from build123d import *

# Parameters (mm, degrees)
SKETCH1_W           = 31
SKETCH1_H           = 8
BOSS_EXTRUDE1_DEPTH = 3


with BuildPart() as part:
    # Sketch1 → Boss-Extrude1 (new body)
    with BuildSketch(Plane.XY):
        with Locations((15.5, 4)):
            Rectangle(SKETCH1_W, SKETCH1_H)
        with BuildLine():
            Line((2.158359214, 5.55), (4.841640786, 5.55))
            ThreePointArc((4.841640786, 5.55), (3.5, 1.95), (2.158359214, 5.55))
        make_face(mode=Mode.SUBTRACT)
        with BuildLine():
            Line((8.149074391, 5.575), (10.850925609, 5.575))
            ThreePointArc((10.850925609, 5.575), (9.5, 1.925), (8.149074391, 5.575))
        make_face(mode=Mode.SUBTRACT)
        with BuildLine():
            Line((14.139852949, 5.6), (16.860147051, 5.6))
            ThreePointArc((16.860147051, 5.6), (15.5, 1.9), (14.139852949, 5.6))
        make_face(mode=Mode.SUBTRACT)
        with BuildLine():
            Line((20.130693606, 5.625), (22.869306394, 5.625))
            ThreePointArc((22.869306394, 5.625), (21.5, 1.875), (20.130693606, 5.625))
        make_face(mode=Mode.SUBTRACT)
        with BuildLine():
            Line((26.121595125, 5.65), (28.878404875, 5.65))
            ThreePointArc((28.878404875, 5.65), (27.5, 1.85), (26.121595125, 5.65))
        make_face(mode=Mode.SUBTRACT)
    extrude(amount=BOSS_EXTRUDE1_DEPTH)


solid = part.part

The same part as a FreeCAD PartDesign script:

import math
import FreeCAD as App
import Part
import Sketcher

V = App.Vector
Q = App.Units.Quantity

doc = App.newDocument("Part")
params = doc.addObject("Spreadsheet::Sheet", "Params")
for row, (alias, value) in enumerate([
    ("sketch1_radius", "2.1 mm"),
    ("sketch1_width", "31 mm"),
    ("sketch1_height", "8 mm"),
    ("sketch1_radius2", "2.05 mm"),
    ("sketch1_radius3", "2.15 mm"),
    ("pad1_length", "3 mm"),
], start=1):
    params.set(f"A{row}", alias)
    params.set(f"B{row}", "=" + value)
    params.setAlias(f"B{row}", alias)

body = doc.addObject("PartDesign::Body", "Body")

sketch1 = body.newObject("Sketcher::SketchObject", "Sketch")
sketch1.AttachmentSupport = (doc.getObject("XY_Plane"), [""])
sketch1.MapMode = "FlatFace"
sketch1.addGeometry(Part.LineSegment(V(0, 8, 0), V(0, 0, 0)), False)
sketch1.addGeometry(Part.LineSegment(V(0, 0, 0), V(31, 0, 0)), False)
sketch1.addGeometry(Part.LineSegment(V(31, 0, 0), V(31, 8, 0)), False)
sketch1.addGeometry(Part.LineSegment(V(31, 8, 0), V(0, 8, 0)), False)
sketch1.addGeometry(Part.ArcOfCircle(Part.Circle(V(3.5, 4, 0), V(0, 0, 1), 2), math.radians(131), math.radians(409)), False)
sketch1.addGeometry(Part.LineSegment(V(2.2, 5.5, 0), V(4.8, 5.5, 0)), False)
sketch1.addGeometry(Part.ArcOfCircle(Part.Circle(V(9.5, 4, 0), V(0, 0, 1), 2.1), math.radians(131), math.radians(409)), False)
sketch1.addGeometry(Part.LineSegment(V(8.1, 5.6, 0), V(10.9, 5.6, 0)), False)
sketch1.addGeometry(Part.ArcOfCircle(Part.Circle(V(15.5, 4, 0), V(0, 0, 1), 2.1), math.radians(130), math.radians(410)), False)
sketch1.addGeometry(Part.LineSegment(V(14.1, 5.6, 0), V(16.9, 5.6, 0)), False)
sketch1.addGeometry(Part.ArcOfCircle(Part.Circle(V(21.5, 4, 0), V(0, 0, 1), 2.1), math.radians(130), math.radians(410)), False)
sketch1.addGeometry(Part.LineSegment(V(20.1, 5.6, 0), V(22.9, 5.6, 0)), False)
sketch1.addGeometry(Part.ArcOfCircle(Part.Circle(V(27.5, 4, 0), V(0, 0, 1), 2.1), math.radians(130), math.radians(410)), False)
sketch1.addGeometry(Part.LineSegment(V(26.1, 5.7, 0), V(28.9, 5.7, 0)), False)
sketch1.addConstraint(Sketcher.Constraint("Coincident", 0, 2, 1, 1))
sketch1.addConstraint(Sketcher.Constraint("Coincident", 1, 2, 2, 1))
sketch1.addConstraint(Sketcher.Constraint("Coincident", 2, 2, 3, 1))
sketch1.addConstraint(Sketcher.Constraint("Coincident", 3, 2, 0, 1))
sketch1.addConstraint(Sketcher.Constraint("Coincident", 4, 1, 5, 1))
sketch1.addConstraint(Sketcher.Constraint("Coincident", 5, 2, 4, 2))
sketch1.addConstraint(Sketcher.Constraint("Coincident", 6, 1, 7, 1))
sketch1.addConstraint(Sketcher.Constraint("Coincident", 7, 2, 6, 2))
sketch1.addConstraint(Sketcher.Constraint("Coincident", 8, 1, 9, 1))
sketch1.addConstraint(Sketcher.Constraint("Coincident", 9, 2, 8, 2))
sketch1.addConstraint(Sketcher.Constraint("Coincident", 10, 1, 11, 1))
sketch1.addConstraint(Sketcher.Constraint("Coincident", 11, 2, 10, 2))
sketch1.addConstraint(Sketcher.Constraint("Coincident", 12, 1, 13, 1))
sketch1.addConstraint(Sketcher.Constraint("Coincident", 13, 2, 12, 2))
sketch1.addConstraint(Sketcher.Constraint("Vertical", 0))
sketch1.addConstraint(Sketcher.Constraint("Horizontal", 1))
sketch1.addConstraint(Sketcher.Constraint("Vertical", 2))
sketch1.addConstraint(Sketcher.Constraint("Horizontal", 3))
sketch1.addConstraint(Sketcher.Constraint("Horizontal", 5))
sketch1.addConstraint(Sketcher.Constraint("Horizontal", 7))
sketch1.addConstraint(Sketcher.Constraint("Horizontal", 9))
sketch1.addConstraint(Sketcher.Constraint("Horizontal", 11))
sketch1.addConstraint(Sketcher.Constraint("Horizontal", 13))
sketch1.addConstraint(Sketcher.Constraint("Coincident", 0, 2, -1, 1))
sketch1.addConstraint(Sketcher.Constraint("Horizontal", 4, 3, 6, 3))
sketch1.addConstraint(Sketcher.Constraint("Horizontal", 6, 3, 8, 3))
sketch1.addConstraint(Sketcher.Constraint("Horizontal", 8, 3, 10, 3))
sketch1.addConstraint(Sketcher.Constraint("Horizontal", 10, 3, 12, 3))
sketch1.addConstraint(Sketcher.Constraint("Radius", 8, Q("2.1 mm")))
sketch1.addConstraint(Sketcher.Constraint("DistanceX", 1, 1, 1, 2, Q("31 mm")))
sketch1.addConstraint(Sketcher.Constraint("DistanceY", 0, 2, 0, 1, Q("8 mm")))
sketch1.addConstraint(Sketcher.Constraint("Radius", 4, Q("2.05 mm")))
sketch1.addConstraint(Sketcher.Constraint("Radius", 12, Q("2.15 mm")))
sketch1.addConstraint(Sketcher.Constraint("DistanceY", -1, 1, 4, 3, Q("4 mm")))
sketch1.addConstraint(Sketcher.Constraint("Radius", 6, Q("2.075 mm")))
sketch1.addConstraint(Sketcher.Constraint("Radius", 10, Q("2.125 mm")))
sketch1.addConstraint(Sketcher.Constraint("DistanceX", 4, 3, 6, 3, Q("6 mm")))
sketch1.addConstraint(Sketcher.Constraint("DistanceX", 6, 3, 8, 3, Q("6 mm")))
sketch1.addConstraint(Sketcher.Constraint("DistanceX", 8, 3, 10, 3, Q("6 mm")))
sketch1.addConstraint(Sketcher.Constraint("DistanceX", 10, 3, 12, 3, Q("6 mm")))
sketch1.addConstraint(Sketcher.Constraint("DistanceX", -1, 1, 4, 3, Q("3.5 mm")))
sketch1.addConstraint(Sketcher.Constraint("DistanceY", -1, 1, 8, 1, Q("5.6 mm")))
sketch1.addConstraint(Sketcher.Constraint("DistanceY", -1, 1, 4, 1, Q("5.55 mm")))
sketch1.addConstraint(Sketcher.Constraint("DistanceY", -1, 1, 12, 1, Q("5.65 mm")))
sketch1.addConstraint(Sketcher.Constraint("DistanceY", -1, 1, 6, 1, Q("5.575 mm")))
sketch1.addConstraint(Sketcher.Constraint("DistanceY", -1, 1, 10, 1, Q("5.625 mm")))
sketch1.setExpression("Constraints[28]", "Params.sketch1_radius")
sketch1.setExpression("Constraints[29]", "Params.sketch1_width")
sketch1.setExpression("Constraints[30]", "Params.sketch1_height")
sketch1.setExpression("Constraints[31]", "Params.sketch1_radius2")
sketch1.setExpression("Constraints[32]", "Params.sketch1_radius3")
pad1 = body.newObject("PartDesign::Pad", "Pad")
pad1.Profile = sketch1
pad1.setExpression("Length", "Params.pad1_length")

doc.recompute()
